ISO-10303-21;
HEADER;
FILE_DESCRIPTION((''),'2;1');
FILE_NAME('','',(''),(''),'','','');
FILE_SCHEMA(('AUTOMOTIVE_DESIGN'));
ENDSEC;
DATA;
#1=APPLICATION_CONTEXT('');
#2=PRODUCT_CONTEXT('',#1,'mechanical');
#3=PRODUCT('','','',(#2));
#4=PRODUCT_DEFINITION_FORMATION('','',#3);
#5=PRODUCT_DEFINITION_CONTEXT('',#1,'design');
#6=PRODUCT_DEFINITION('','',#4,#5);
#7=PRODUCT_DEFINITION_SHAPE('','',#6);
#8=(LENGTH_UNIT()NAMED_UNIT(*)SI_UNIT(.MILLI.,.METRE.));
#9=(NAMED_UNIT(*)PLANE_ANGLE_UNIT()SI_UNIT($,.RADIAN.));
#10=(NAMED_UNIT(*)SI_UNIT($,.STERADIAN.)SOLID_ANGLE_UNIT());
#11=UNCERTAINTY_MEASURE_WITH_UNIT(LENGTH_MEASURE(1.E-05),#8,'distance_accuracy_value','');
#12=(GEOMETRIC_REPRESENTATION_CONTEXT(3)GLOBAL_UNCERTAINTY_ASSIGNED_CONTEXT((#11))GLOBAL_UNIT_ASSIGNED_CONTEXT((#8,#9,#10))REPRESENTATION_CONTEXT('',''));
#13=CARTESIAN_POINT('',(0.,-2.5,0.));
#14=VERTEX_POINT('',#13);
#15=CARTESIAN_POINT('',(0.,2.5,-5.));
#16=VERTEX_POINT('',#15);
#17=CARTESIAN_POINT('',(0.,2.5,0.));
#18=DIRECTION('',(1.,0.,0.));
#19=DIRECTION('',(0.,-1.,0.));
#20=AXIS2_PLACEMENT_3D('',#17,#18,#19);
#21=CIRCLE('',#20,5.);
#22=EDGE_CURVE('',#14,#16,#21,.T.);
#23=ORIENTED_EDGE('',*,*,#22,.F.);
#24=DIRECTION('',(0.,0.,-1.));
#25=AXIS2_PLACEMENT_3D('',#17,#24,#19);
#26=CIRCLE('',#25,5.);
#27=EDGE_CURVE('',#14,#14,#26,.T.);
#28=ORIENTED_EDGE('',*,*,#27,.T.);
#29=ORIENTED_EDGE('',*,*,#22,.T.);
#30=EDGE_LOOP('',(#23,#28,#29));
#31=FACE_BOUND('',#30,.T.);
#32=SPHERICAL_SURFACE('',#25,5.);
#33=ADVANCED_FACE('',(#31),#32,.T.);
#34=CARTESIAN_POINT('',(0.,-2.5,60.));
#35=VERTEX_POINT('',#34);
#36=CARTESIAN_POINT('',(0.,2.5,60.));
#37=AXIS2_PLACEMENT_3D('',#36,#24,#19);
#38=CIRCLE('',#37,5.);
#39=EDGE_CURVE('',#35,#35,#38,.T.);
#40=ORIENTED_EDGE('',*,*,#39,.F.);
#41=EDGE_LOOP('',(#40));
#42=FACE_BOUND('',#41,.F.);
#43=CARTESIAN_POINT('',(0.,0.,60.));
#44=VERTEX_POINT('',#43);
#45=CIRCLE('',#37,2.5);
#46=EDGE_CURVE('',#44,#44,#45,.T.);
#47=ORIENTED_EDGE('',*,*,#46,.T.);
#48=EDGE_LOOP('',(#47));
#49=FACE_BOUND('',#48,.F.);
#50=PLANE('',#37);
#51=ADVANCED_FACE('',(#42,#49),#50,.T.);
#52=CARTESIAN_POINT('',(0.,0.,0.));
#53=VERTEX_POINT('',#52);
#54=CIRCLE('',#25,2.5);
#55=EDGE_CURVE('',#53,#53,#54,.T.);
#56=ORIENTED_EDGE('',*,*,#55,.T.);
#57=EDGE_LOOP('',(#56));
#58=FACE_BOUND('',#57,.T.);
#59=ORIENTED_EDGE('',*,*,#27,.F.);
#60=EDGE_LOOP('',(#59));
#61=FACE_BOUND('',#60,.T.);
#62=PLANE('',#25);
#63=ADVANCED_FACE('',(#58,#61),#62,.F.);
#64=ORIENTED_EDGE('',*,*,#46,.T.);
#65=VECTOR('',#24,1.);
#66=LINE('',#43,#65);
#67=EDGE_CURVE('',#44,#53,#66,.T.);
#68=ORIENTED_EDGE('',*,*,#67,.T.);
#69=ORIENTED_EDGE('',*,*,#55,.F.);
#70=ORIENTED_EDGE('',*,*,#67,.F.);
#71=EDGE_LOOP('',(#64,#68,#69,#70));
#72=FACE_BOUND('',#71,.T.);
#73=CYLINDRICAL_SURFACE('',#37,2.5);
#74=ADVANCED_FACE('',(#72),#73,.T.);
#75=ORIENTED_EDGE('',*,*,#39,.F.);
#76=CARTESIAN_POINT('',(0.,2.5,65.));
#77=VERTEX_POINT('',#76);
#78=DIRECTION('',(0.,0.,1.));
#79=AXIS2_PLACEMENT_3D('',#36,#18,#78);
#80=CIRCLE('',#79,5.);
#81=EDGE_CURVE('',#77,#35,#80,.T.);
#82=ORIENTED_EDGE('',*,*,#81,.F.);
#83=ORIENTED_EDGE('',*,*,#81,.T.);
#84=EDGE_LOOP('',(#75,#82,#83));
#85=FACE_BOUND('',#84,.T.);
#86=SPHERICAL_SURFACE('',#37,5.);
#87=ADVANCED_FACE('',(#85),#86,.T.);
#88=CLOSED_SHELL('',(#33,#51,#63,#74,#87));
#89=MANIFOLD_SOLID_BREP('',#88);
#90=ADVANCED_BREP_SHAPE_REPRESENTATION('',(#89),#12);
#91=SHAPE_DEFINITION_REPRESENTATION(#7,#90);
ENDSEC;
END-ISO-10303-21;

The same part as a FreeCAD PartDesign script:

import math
import FreeCAD as App
import Part
import Sketcher
from FreeCAD import Vector
Q = App.Units.Quantity

doc = App.newDocument("Part")
body = doc.addObject("PartDesign::Body", "Body")

sketch1 = body.newObject("Sketcher::SketchObject", "Sketch")
sketch1.AttachmentSupport = (doc.getObject("YZ_Plane"), [""])
sketch1.MapMode = "FlatFace"
sketch1.addGeometry([
    Part.LineSegment(Vector(0, 60, 0), Vector(0, 0, 0)),
    Part.LineSegment(Vector(0, 0, 0), Vector(-2.5, 0, 0)),
    Part.ArcOfCircle(Part.Circle(Vector(2.5, 0, 0), Vector(0, 0, 1), 5), math.radians(180), math.radians(270)),
    Part.LineSegment(Vector(2.5, -5, 0), Vector(2.5, 65, 0)),
    Part.ArcOfCircle(Part.Circle(Vector(2.5, 60, 0), Vector(0, 0, 1), 5), math.radians(90), math.radians(180)),
    Part.LineSegment(Vector(-2.5, 60, 0), Vector(0, 60, 0)),
], False)
sketch1.addGeometry(Part.LineSegment(Vector(2.5, 65, 0), Vector(2.5, -5, 0)), True)
sketch1.addConstraint([
    Sketcher.Constraint("Coincident", 0, 2, 1, 1),
    Sketcher.Constraint("Coincident", 1, 2, 2, 1),
    Sketcher.Constraint("Coincident", 2, 2, 3, 1),
    Sketcher.Constraint("Coincident", 3, 2, 4, 1),
    Sketcher.Constraint("Coincident", 4, 2, 5, 1),
    Sketcher.Constraint("Coincident", 5, 2, 0, 1),
    Sketcher.Constraint("Vertical", 0),
    Sketcher.Constraint("Horizontal", 1),
    Sketcher.Constraint("Vertical", 3),
    Sketcher.Constraint("Horizontal", 5),
    Sketcher.Constraint("Vertical", 6),
    Sketcher.Constraint("Coincident", 0, 2, -1, 1),
    Sketcher.Constraint("Coincident", 6, 1, 3, 2),
    Sketcher.Constraint("Equal", 2, 4),
    Sketcher.Constraint("PointOnObject", 2, 3, -1),
    Sketcher.Constraint("Vertical", 2, 3, 4, 3),
    Sketcher.Constraint("Vertical", 4, 3, 2, 2),
    Sketcher.Constraint("Equal", 3, 6),
    Sketcher.Constraint("Radius", 2, Q("5 mm")),
    Sketcher.Constraint("DistanceY", 0, 2, 0, 1, Q("60 mm")),
    Sketcher.Constraint("DistanceY", 3, 1, 3, 2, Q("70 mm")),
    Sketcher.Constraint("DistanceX", 1, 2, 1, 1, Q("2.5 mm")),
])
revolution = body.newObject("PartDesign::Revolution", "Revolution")
revolution.Profile = sketch1
revolution.ReferenceAxis = (sketch1, ["Axis0"])
revolution.Angle = 360

doc.recompute()
